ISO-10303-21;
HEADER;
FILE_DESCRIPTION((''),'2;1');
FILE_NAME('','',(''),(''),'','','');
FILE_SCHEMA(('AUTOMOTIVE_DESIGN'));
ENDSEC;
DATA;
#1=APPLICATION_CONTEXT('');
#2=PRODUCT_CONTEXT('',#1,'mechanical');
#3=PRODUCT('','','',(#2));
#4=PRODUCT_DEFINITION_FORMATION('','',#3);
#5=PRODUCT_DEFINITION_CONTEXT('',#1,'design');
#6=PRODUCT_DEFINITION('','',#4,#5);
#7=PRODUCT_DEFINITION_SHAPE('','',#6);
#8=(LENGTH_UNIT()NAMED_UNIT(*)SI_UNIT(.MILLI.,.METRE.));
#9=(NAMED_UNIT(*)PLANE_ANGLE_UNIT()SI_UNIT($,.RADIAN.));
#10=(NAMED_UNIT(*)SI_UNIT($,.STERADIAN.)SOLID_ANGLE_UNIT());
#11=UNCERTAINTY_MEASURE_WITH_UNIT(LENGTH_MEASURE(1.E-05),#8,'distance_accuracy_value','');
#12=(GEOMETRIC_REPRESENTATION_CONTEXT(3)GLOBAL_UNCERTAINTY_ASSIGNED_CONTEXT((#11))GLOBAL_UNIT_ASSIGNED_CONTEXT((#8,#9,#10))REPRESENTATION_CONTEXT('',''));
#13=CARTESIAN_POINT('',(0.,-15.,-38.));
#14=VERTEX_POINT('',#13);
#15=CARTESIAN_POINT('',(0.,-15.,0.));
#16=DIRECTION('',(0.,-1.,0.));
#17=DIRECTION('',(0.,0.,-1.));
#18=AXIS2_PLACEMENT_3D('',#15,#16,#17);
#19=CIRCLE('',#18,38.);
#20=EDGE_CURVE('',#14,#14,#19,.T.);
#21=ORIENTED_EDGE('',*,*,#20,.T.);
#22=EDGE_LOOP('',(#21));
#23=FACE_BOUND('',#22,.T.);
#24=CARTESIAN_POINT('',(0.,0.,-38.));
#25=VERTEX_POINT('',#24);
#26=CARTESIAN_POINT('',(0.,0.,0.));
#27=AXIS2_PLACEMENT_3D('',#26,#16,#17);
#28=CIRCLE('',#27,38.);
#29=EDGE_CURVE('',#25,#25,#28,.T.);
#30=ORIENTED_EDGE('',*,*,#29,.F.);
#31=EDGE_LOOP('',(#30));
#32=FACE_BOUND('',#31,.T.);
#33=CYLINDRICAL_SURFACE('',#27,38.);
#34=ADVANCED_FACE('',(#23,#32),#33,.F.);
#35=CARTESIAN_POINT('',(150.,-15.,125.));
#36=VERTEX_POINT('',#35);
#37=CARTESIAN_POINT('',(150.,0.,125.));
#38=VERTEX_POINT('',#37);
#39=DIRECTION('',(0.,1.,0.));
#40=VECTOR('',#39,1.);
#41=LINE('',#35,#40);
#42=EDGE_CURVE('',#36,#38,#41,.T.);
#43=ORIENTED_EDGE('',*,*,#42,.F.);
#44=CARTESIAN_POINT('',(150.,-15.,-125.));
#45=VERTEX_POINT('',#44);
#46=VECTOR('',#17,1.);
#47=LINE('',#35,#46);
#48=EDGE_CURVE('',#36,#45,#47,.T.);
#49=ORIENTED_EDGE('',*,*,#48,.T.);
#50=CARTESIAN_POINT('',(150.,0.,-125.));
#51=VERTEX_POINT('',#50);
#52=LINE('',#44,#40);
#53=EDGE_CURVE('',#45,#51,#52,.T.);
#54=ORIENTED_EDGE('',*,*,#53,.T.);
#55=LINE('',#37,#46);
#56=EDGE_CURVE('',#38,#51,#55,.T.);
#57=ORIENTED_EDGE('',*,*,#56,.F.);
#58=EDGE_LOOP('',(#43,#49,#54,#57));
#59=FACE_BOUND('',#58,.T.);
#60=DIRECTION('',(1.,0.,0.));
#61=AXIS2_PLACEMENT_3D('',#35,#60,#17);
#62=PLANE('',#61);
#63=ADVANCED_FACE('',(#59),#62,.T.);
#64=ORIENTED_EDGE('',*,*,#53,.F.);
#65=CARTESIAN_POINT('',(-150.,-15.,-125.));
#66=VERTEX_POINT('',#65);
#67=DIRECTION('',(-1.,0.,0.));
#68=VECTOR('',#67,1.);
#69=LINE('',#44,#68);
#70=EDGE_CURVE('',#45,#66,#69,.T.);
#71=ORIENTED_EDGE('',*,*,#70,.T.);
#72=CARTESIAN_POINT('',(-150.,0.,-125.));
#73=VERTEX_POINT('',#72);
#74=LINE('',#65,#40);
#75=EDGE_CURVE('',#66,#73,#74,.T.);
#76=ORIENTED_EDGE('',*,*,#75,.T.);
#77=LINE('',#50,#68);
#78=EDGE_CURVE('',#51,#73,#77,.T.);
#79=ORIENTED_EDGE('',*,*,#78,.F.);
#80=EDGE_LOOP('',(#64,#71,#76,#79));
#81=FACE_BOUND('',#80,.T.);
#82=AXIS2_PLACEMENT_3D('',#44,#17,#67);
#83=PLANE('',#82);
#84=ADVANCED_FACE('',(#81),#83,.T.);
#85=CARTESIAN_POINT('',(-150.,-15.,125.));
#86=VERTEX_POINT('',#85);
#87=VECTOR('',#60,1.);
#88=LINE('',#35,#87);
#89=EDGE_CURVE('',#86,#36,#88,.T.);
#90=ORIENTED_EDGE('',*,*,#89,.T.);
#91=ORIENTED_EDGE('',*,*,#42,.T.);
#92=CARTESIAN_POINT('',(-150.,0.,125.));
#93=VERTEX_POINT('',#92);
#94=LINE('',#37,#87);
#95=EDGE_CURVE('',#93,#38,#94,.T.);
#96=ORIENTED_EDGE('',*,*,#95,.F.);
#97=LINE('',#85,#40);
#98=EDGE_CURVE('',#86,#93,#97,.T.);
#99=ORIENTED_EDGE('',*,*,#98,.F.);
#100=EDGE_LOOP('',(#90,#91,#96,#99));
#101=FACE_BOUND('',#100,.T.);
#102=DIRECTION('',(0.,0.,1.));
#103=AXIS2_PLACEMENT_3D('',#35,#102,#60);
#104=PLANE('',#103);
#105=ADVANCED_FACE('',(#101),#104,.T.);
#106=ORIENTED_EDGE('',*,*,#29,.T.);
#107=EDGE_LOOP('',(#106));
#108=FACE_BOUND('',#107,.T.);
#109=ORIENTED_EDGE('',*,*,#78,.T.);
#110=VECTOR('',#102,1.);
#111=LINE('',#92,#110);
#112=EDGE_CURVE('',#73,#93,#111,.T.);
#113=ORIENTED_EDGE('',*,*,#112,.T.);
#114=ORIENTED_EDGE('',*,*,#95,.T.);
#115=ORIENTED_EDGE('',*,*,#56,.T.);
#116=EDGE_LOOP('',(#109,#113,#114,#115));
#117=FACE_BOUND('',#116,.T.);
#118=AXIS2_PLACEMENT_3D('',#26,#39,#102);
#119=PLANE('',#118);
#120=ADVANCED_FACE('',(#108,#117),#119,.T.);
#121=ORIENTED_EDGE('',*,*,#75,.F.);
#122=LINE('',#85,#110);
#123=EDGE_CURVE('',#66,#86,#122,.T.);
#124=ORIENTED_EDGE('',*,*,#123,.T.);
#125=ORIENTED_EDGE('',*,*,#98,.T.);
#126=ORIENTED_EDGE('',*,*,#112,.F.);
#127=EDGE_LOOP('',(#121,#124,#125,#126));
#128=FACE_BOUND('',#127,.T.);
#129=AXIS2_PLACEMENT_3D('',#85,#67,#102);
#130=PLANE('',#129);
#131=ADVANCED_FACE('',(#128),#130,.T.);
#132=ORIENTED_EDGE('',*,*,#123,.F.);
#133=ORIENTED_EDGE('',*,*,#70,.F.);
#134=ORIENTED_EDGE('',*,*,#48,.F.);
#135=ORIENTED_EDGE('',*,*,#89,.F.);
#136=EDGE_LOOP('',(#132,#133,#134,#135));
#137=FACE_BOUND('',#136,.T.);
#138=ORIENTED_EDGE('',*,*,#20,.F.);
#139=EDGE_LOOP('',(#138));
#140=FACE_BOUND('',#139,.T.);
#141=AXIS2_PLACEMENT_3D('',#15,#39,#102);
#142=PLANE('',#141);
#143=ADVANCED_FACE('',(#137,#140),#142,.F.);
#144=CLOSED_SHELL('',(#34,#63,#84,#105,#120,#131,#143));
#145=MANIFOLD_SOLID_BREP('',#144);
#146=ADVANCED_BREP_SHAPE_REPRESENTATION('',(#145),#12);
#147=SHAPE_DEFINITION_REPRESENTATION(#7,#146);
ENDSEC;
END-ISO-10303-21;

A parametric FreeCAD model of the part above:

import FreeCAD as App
import Part
import Sketcher
Q = App.Units.Quantity

doc = App.newDocument("Part")
body = doc.addObject("PartDesign::Body", "Body")

sketch1 = doc.addObject("Sketcher::SketchObject", "Sketch")
body.addObject(sketch1)
sketch1.AttachmentSupport = (doc.XZ_Plane, [""])
sketch1.MapMode = "FlatFace"
sketch1.addGeometry(Part.LineSegment(App.Vector(-150, -125, 0), App.Vector(-150, 125, 0)), False)
sketch1.addGeometry(Part.LineSegment(App.Vector(-150, 125, 0), App.Vector(150, 125, 0)), False)
sketch1.addGeometry(Part.LineSegment(App.Vector(150, 125, 0), App.Vector(150, -125, 0)), False)
sketch1.addGeometry(Part.LineSegment(App.Vector(150, -125, 0), App.Vector(-150, -125, 0)), False)
sketch1.addConstraint(Sketcher.Constraint("Coincident", 0, 2, 1, 1))
sketch1.addConstraint(Sketcher.Constraint("Coincident", 1, 2, 2, 1))
sketch1.addConstraint(Sketcher.Constraint("Coincident", 2, 2, 3, 1))
sketch1.addConstraint(Sketcher.Constraint("Coincident", 3, 2, 0, 1))
sketch1.addConstraint(Sketcher.Constraint("Vertical", 0))
sketch1.addConstraint(Sketcher.Constraint("Horizontal", 1))
sketch1.addConstraint(Sketcher.Constraint("Vertical", 2))
sketch1.addConstraint(Sketcher.Constraint("Horizontal", 3))
sketch1.addConstraint(Sketcher.Constraint("Symmetric", 0, 2, 2, 2, -1, 1))
sketch1.addConstraint(Sketcher.Constraint("DistanceX", 1, 1, 1, 2, Q("300 mm")))
sketch1.addConstraint(Sketcher.Constraint("DistanceY", 0, 1, 0, 2, Q("250 mm")))
pad1 = doc.addObject("PartDesign::Pad", "Pad")
body.addObject(pad1)
pad1.Profile = sketch1
pad1.Length = 15

sketch2 = doc.addObject("Sketcher::SketchObject", "Sketch001")
body.addObject(sketch2)
sketch2.AttachmentSupport = (doc.XZ_Plane, [""])
sketch2.MapMode = "FlatFace"
sketch2.AttachmentOffset = App.Placement(App.Vector(0, 0, 15), App.Rotation())
sketch2.addGeometry(Part.Circle(App.Vector(0, 0, 0), App.Vector(0, 0, 1), 38), False)
sketch2.addConstraint(Sketcher.Constraint("Coincident", 0, 3, -1, 1))
sketch2.addConstraint(Sketcher.Constraint("Diameter", 0, Q("76 mm")))
pocket1 = doc.addObject("PartDesign::Pocket", "Pocket")
body.addObject(pocket1)
pocket1.Profile = sketch2
pocket1.Length = 15

doc.recompute()
